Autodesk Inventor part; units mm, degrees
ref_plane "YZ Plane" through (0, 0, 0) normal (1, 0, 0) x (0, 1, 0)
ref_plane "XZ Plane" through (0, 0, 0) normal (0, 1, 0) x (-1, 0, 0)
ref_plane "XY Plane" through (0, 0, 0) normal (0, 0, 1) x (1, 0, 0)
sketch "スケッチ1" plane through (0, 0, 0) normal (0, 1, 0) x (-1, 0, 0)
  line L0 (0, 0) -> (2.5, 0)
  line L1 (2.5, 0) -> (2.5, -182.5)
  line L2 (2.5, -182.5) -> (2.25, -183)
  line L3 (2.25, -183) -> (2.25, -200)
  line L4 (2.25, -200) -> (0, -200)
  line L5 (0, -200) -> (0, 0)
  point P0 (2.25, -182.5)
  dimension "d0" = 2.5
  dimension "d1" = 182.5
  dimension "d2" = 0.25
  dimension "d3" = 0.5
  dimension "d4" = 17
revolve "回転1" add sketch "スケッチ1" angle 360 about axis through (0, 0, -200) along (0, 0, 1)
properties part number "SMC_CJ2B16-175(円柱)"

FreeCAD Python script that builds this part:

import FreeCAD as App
import Part
import Sketcher
from FreeCAD import Vector

doc = App.newDocument("Part")
body = doc.addObject("PartDesign::Body", "Body")

# Sketch on XZ plane
sketch1 = body.newObject("Sketcher::SketchObject", "Sketch")
sketch1.AttachmentSupport = (doc.getObject("XZ_Plane"), [""])
sketch1.MapMode = "FlatFace"
sketch1.addGeometry(Part.LineSegment(Vector(-2.5, 0, 0), Vector(0, 0, 0)), False)
sketch1.addGeometry(Part.LineSegment(Vector(0, 0, 0), Vector(0, -200, 0)), False)
sketch1.addGeometry(Part.LineSegment(Vector(0, -200, 0), Vector(-2.25, -200, 0)), False)
sketch1.addGeometry(Part.LineSegment(Vector(-2.25, -200, 0), Vector(-2.25, -183, 0)), False)
sketch1.addGeometry(Part.LineSegment(Vector(-2.25, -183, 0), Vector(-2.5, -182.5, 0)), False)
sketch1.addGeometry(Part.LineSegment(Vector(-2.5, -182.5, 0), Vector(-2.5, 0, 0)), False)
sketch1.addConstraint(Sketcher.Constraint("Coincident", 0, 2, 1, 1))
sketch1.addConstraint(Sketcher.Constraint("Coincident", 1, 2, 2, 1))
sketch1.addConstraint(Sketcher.Constraint("Coincident", 2, 2, 3, 1))
sketch1.addConstraint(Sketcher.Constraint("Coincident", 3, 2, 4, 1))
sketch1.addConstraint(Sketcher.Constraint("Coincident", 4, 2, 5, 1))
sketch1.addConstraint(Sketcher.Constraint("Coincident", 5, 2, 0, 1))
sketch1.addConstraint(Sketcher.Constraint("Horizontal", 0))
sketch1.addConstraint(Sketcher.Constraint("Vertical", 1))
sketch1.addConstraint(Sketcher.Constraint("Horizontal", 2))
sketch1.addConstraint(Sketcher.Constraint("Vertical", 3))
sketch1.addConstraint(Sketcher.Constraint("Vertical", 5))
sketch1.addConstraint(Sketcher.Constraint("Coincident", 0, 2, -1, 1))
sketch1.addConstraint(Sketcher.Constraint("DistanceY", 3, 1, 3, 2, 17.0))
sketch1.addConstraint(Sketcher.Constraint("DistanceX", 0, 1, 0, 2, 2.5))
sketch1.addConstraint(Sketcher.Constraint("DistanceY", 5, 1, 5, 2, 182.5))
sketch1.addConstraint(Sketcher.Constraint("DistanceY", 3, 2, 4, 2, 0.5))
sketch1.addConstraint(Sketcher.Constraint("DistanceX", 4, 2, 3, 2, 0.25))
revolution = body.newObject("PartDesign::Revolution", "Revolution")
revolution.Profile = sketch1
revolution.ReferenceAxis = (sketch1, ["V_Axis"])
revolution.Angle = 360

doc.recompute()
